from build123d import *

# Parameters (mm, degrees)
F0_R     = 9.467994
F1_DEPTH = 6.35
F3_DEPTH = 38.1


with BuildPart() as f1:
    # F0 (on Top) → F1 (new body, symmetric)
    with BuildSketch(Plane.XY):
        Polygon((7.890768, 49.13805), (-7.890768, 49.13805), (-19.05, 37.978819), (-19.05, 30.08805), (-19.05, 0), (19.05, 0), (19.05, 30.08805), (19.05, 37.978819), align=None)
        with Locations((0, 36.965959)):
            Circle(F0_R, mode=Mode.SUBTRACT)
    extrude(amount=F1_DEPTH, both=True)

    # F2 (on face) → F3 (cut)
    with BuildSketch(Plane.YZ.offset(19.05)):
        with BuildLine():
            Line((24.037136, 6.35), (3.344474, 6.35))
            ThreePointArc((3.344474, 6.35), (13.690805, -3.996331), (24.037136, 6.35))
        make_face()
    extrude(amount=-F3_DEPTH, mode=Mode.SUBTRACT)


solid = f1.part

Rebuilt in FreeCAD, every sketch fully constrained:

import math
import FreeCAD as App
import Part
import Sketcher

V = App.Vector
Q = App.Units.Quantity


def add_polygon(sketch, points):
    """Adds a closed chain of lines whose ends are joined by coincident constraints."""
    first, n = sketch.GeometryCount, len(points)
    for a, b in zip(points, points[1:] + points[:1]):
        sketch.addGeometry(Part.LineSegment(App.Vector(*a, 0), App.Vector(*b, 0)), False)
    for i in range(n):
        sketch.addConstraint(Sketcher.Constraint("Coincident", first + i, 2, first + (i + 1) % n, 1))

doc = App.newDocument("Part")
body = doc.addObject("PartDesign::Body", "Body")

# Sketch on XY plane
sketch1 = doc.addObject("Sketcher::SketchObject", "Sketch")
body.addObject(sketch1)
sketch1.AttachmentSupport = (doc.XY_Plane, [""])
sketch1.MapMode = "FlatFace"
add_polygon(sketch1, [(8, 49), (-8, 49), (-19, 38), (-19, 0), (19, 0), (19, 38)])  # lines 0-5
sketch1.addGeometry(Part.Circle(V(0, 37, 0), V(0, 0, 1), 9), False)  # 6
sketch1.addConstraint([
    Sketcher.Constraint("Horizontal", 0),
    Sketcher.Constraint("Vertical", 2),
    Sketcher.Constraint("Horizontal", 3),
    Sketcher.Constraint("Vertical", 4),
    Sketcher.Constraint("Symmetric", 2, 2, 3, 2, -1, 1),
    Sketcher.Constraint("PointOnObject", 6, 3, -2),
    Sketcher.Constraint("Perpendicular", 1, 5),
    Sketcher.Constraint("Horizontal", 1, 2, 4, 2),
    Sketcher.Constraint("Equal", 1, 5),
    Sketcher.Constraint("DistanceX", 3, 1, 3, 2, Q("1.5 in")),
    Sketcher.Constraint("Diameter", 6, Q("18.935988 mm")),
    Sketcher.Constraint("DistanceY", 2, 2, 2, 1, Q("37.978819 mm")),
    Sketcher.Constraint("DistanceX", 0, 2, 0, 1, Q("15.781536 mm")),
    Sketcher.Constraint("DistanceY", -1, 1, 6, 3, Q("36.965959 mm")),
])
pad1 = doc.addObject("PartDesign::Pad", "Pad")
body.addObject(pad1)
pad1.Profile = sketch1
pad1.Length = Q("0.5 in")
pad1.Midplane = True

# Sketch on YZ plane
sketch2 = doc.addObject("Sketcher::SketchObject", "Sketch001")
body.addObject(sketch2)
sketch2.AttachmentSupport = (doc.YZ_Plane, [""])
sketch2.MapMode = "FlatFace"
sketch2.AttachmentOffset = App.Placement(V(0, 0, 0.75 * 25.4), App.Rotation())
sketch2.addGeometry([
    Part.LineSegment(V(24, 6, 0), V(3, 6, 0)),
    Part.ArcOfCircle(Part.Circle(V(14, 6, 0), V(0, 0, 1), 10), math.radians(180), math.radians(360)),
], False)
sketch2.addConstraint([
    Sketcher.Constraint("Coincident", 0, 1, 1, 2),
    Sketcher.Constraint("Coincident", 1, 1, 0, 2),
    Sketcher.Constraint("Horizontal", 0),
    Sketcher.Constraint("Horizontal", 1, 3, 0, 1),
    Sketcher.Constraint("DistanceY", -1, 1, 1, 3, Q("0.25 in")),
    Sketcher.Constraint("Radius", 1, Q("10.346331 mm")),
    Sketcher.Constraint("DistanceX", -1, 1, 1, 3, Q("13.690805 mm")),
])
pocket1 = doc.addObject("PartDesign::Pocket", "Pocket")
body.addObject(pocket1)
pocket1.Profile = sketch2
pocket1.Length = Q("1.5 in")

doc.recompute()
